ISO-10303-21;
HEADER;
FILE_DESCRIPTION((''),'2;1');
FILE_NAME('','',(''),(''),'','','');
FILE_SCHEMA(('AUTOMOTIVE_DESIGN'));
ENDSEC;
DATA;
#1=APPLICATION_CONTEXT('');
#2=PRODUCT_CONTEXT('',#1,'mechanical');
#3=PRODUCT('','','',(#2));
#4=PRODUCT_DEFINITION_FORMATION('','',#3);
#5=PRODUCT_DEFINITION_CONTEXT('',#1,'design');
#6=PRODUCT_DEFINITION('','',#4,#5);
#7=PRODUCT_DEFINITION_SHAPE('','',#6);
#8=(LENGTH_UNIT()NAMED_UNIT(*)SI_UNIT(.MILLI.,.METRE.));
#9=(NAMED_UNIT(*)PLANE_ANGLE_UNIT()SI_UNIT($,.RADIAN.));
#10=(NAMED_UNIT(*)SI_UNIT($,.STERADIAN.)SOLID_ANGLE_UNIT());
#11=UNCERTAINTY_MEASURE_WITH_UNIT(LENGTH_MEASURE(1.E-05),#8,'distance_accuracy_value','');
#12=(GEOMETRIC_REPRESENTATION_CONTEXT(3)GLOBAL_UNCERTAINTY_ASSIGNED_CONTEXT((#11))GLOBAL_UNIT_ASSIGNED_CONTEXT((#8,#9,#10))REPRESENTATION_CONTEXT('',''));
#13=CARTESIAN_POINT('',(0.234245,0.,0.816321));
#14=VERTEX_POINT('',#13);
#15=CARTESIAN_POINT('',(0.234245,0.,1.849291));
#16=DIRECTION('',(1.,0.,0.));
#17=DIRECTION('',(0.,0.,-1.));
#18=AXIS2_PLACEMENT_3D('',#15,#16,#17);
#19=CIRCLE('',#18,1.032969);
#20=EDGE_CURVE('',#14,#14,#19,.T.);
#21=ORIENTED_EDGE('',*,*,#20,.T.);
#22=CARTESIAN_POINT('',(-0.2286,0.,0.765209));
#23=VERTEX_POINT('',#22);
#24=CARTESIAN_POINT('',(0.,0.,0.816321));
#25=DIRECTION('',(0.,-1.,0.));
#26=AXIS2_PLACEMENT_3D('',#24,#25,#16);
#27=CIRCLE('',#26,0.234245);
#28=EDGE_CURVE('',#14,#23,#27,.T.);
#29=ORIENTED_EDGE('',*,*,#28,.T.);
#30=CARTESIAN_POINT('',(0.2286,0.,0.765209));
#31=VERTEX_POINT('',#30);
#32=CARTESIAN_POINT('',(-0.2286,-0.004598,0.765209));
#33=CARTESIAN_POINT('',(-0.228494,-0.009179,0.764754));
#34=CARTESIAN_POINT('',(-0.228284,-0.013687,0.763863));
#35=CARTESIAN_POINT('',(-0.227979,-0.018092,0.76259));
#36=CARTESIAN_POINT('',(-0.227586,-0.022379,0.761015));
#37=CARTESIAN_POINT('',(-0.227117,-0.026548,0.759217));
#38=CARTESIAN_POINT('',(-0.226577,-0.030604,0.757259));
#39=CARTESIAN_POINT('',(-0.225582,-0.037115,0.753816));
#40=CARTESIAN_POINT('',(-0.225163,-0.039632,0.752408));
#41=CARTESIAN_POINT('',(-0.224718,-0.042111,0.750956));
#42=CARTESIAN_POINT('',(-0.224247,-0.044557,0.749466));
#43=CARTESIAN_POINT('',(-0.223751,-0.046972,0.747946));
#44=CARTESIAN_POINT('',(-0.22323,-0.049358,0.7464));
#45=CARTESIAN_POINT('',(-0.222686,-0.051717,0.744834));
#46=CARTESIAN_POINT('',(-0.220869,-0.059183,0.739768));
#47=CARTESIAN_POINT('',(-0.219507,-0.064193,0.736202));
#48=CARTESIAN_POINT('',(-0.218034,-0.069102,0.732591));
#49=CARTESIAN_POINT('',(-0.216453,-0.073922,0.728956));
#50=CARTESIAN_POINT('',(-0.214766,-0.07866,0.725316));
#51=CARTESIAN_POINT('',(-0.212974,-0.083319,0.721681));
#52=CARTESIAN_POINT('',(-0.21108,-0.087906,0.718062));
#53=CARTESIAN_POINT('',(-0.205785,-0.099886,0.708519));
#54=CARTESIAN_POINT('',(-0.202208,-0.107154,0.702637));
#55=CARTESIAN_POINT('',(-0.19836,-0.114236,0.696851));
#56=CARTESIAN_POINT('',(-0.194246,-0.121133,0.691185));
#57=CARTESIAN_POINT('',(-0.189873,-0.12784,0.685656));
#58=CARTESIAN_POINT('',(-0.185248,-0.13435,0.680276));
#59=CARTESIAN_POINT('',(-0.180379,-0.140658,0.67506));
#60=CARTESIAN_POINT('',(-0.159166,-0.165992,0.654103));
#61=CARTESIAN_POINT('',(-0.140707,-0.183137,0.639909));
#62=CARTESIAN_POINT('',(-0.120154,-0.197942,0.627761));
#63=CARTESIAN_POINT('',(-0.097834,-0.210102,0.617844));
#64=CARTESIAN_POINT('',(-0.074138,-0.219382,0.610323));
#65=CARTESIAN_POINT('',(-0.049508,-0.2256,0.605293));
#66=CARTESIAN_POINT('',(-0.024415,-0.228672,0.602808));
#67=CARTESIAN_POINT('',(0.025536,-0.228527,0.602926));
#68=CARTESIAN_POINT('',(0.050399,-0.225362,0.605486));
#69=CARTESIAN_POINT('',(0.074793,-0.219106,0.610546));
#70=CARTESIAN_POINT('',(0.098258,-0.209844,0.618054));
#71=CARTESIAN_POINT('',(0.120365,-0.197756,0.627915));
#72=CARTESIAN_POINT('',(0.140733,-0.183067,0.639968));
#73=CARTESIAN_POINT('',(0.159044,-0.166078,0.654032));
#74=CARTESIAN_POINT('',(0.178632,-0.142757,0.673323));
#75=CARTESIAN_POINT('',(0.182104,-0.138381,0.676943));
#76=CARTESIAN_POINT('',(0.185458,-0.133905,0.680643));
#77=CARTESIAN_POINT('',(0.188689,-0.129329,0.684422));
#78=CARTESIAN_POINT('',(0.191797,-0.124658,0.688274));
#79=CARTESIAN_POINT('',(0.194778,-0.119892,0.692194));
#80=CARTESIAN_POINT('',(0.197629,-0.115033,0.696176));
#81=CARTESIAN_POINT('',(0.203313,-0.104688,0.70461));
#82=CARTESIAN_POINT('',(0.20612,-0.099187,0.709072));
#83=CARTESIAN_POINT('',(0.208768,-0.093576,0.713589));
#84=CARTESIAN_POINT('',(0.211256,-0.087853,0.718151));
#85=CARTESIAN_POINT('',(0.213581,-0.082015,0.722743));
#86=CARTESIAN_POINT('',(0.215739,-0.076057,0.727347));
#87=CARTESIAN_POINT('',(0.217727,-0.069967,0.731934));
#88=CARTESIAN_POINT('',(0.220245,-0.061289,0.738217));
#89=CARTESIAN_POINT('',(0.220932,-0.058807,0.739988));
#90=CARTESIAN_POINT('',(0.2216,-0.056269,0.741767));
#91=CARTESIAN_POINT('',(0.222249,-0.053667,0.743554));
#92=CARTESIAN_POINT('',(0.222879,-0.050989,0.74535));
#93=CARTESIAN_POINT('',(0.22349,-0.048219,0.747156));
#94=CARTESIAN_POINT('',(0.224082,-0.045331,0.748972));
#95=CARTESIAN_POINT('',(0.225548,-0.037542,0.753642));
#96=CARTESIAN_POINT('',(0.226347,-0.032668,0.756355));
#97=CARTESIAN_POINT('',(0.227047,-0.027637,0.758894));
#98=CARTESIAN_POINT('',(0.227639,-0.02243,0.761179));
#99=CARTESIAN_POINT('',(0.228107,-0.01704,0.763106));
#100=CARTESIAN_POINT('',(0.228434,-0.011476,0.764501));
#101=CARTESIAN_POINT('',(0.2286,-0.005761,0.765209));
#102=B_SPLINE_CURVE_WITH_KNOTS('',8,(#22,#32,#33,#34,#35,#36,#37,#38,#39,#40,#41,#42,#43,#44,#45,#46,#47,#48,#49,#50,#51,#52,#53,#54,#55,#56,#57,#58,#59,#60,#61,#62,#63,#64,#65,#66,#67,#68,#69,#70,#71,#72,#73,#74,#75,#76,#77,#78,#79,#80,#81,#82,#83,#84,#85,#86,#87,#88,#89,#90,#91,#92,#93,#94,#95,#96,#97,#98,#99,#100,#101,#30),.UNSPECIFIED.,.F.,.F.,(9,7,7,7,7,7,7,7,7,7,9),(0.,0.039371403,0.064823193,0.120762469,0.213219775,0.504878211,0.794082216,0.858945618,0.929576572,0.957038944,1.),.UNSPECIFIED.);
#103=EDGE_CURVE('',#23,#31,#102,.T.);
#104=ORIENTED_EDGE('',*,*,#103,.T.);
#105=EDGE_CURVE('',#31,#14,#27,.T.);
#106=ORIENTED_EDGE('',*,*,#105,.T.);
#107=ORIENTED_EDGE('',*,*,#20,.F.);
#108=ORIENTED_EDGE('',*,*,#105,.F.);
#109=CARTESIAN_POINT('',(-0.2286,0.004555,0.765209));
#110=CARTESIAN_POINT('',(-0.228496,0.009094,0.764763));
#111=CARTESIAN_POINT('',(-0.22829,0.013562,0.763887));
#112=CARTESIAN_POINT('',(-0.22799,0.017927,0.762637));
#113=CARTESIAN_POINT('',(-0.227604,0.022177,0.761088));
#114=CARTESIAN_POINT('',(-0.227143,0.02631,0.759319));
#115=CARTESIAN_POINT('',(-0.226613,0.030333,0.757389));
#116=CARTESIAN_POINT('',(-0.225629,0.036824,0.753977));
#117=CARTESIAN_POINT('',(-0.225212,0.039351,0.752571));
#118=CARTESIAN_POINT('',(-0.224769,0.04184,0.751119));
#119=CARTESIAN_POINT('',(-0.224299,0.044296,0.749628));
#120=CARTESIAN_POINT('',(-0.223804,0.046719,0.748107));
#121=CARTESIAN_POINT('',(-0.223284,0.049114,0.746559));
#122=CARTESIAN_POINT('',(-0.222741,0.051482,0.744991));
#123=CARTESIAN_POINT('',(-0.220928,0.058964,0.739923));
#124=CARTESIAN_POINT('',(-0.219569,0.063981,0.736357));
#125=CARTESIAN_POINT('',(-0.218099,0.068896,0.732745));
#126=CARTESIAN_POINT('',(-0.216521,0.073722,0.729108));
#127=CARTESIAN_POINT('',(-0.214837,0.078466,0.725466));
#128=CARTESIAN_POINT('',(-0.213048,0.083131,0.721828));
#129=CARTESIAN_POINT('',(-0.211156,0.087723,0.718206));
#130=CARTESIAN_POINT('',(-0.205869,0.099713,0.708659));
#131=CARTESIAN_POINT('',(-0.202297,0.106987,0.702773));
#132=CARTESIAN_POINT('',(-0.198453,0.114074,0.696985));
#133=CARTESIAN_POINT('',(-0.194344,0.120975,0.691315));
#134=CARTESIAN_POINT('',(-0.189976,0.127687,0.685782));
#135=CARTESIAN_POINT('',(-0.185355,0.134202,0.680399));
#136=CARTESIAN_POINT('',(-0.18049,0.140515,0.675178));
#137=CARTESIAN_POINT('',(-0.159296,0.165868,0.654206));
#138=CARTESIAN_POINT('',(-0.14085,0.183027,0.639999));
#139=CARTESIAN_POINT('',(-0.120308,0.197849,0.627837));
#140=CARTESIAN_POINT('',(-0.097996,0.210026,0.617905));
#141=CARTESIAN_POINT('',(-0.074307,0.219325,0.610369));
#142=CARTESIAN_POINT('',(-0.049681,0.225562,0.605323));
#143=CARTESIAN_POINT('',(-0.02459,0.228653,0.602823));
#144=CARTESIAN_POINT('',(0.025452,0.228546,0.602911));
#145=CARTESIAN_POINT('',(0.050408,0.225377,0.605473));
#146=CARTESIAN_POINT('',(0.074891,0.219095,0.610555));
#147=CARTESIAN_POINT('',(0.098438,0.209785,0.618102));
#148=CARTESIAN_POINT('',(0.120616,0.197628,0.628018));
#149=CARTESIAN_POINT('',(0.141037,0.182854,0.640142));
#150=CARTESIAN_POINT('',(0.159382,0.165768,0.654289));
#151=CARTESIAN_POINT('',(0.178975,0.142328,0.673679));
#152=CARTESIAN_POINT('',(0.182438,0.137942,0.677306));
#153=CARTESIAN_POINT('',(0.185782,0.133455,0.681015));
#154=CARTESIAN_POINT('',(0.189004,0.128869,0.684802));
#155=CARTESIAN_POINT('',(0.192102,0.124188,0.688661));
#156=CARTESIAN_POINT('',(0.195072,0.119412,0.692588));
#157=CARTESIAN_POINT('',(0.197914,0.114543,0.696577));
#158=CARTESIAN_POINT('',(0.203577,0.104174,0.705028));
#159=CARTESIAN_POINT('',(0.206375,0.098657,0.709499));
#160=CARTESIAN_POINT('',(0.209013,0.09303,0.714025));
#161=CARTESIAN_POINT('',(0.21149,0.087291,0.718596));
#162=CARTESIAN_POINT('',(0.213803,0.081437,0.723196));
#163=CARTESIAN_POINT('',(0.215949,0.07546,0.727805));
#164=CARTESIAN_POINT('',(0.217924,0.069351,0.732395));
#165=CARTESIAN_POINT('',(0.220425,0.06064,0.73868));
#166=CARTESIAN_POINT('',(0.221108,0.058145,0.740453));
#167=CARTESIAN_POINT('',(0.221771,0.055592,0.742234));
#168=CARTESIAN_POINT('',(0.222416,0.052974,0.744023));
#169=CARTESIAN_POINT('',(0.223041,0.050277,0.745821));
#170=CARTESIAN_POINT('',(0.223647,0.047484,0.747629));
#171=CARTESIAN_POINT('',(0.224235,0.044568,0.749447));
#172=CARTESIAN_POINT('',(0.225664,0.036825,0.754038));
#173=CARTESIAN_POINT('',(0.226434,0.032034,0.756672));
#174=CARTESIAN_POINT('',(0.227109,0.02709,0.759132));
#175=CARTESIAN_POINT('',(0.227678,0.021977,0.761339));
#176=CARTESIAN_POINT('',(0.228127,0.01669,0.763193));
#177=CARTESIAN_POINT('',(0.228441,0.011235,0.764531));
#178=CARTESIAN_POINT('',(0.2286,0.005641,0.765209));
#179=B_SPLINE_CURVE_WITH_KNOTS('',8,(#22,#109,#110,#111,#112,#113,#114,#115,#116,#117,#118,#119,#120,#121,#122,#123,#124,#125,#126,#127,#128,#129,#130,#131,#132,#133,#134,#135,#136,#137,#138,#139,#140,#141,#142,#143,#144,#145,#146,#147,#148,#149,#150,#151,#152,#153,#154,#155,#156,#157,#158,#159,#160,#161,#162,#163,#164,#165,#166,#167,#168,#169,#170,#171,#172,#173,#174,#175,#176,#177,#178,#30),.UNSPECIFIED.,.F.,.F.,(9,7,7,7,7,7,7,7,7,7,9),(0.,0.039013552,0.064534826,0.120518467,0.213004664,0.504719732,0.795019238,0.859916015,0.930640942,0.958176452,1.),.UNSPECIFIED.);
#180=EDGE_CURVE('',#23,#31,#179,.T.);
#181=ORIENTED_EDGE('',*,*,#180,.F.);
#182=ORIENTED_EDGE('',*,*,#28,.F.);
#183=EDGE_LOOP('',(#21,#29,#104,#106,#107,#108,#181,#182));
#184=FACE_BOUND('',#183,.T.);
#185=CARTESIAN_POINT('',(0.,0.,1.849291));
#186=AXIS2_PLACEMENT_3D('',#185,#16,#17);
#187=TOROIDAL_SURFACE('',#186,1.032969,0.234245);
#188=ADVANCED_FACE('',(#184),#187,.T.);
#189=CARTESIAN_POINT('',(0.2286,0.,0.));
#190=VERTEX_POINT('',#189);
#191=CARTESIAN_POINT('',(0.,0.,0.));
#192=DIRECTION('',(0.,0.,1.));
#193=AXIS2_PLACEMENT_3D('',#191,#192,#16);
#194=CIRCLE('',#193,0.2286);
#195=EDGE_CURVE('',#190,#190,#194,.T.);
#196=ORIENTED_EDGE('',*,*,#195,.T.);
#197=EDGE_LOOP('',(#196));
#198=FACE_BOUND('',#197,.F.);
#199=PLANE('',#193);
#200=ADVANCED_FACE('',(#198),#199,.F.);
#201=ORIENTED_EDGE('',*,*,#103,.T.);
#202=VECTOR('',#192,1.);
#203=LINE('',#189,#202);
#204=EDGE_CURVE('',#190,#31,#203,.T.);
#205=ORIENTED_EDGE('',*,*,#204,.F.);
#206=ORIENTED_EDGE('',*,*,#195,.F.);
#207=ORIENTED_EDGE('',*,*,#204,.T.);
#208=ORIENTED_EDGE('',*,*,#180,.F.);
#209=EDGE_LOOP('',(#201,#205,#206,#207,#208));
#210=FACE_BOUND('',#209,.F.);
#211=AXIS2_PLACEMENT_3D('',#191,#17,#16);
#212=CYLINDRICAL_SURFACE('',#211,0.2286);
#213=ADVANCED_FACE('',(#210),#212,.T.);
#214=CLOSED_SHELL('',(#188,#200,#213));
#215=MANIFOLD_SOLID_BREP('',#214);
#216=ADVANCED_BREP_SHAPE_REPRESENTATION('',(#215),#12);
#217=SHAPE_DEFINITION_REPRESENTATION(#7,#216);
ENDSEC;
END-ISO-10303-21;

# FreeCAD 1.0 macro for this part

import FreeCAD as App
import Part
import Sketcher

V = App.Vector
Q = App.Units.Quantity

doc = App.newDocument("Part")
params = doc.addObject("Spreadsheet::Sheet", "Params")
for row, (alias, value) in enumerate([
    ("sketch1_diameter", "0.25 in"),
    ("pad1_length", "6 in"),
    ("sketch2_diameter", "0.018 in"),
    ("pad2_length", "0.032 in"),
    ("revolution_angle", "360 deg"),
], start=1):
    params.set(f"A{row}", alias)
    params.set(f"B{row}", "=" + value)
    params.setAlias(f"B{row}", alias)

body = doc.addObject("PartDesign::Body", "Body")

sketch1 = doc.addObject("Sketcher::SketchObject", "Sketch")
body.addObject(sketch1)
sketch1.AttachmentSupport = (doc.XY_Plane, [""])
sketch1.MapMode = "FlatFace"
sketch1.addGeometry(Part.Circle(V(0, 0, 0), V(0, 0, 1), 3.2), False)
sketch1.addConstraint([
    Sketcher.Constraint("Coincident", 0, 3, -1, 1),
    Sketcher.Constraint("Diameter", 0, Q("0.25 in")),
])
sketch1.setExpression("Constraints[1]", "Params.sketch1_diameter")
pad1 = doc.addObject("PartDesign::Pad", "Pad")
body.addObject(pad1)
pad1.Profile = sketch1
pad1.setExpression("Length", "Params.pad1_length")
body2 = doc.addObject("PartDesign::Body", "Body001")

sketch2 = doc.addObject("Sketcher::SketchObject", "Sketch001")
body2.addObject(sketch2)
sketch2.AttachmentSupport = (doc.getObject("XY_Plane001"), [""])
sketch2.MapMode = "FlatFace"
sketch2.addGeometry(Part.Circle(V(0, 0, 0), V(0, 0, 1), 0.23), False)
sketch2.addConstraint([
    Sketcher.Constraint("Coincident", 0, 3, -1, 1),
    Sketcher.Constraint("Diameter", 0, Q("0.018 in")),
])
sketch2.setExpression("Constraints[1]", "Params.sketch2_diameter")
pad2 = doc.addObject("PartDesign::Pad", "Pad001")
body2.addObject(pad2)
pad2.Profile = sketch2
pad2.setExpression("Length", "Params.pad2_length")

sketch3 = doc.addObject("Sketcher::SketchObject", "Sketch002")
body2.addObject(sketch3)
sketch3.AttachmentSupport = (doc.getObject("XZ_Plane001"), [""])
sketch3.MapMode = "FlatFace"
sketch3.addGeometry(Part.Circle(V(0, 0.82, 0), V(0, 0, 1), 0.23), False)
sketch3.addGeometry(Part.LineSegment(V(0, 1.85, 0), V(10, 1.85, 0)), True)
sketch3.addConstraint([
    Sketcher.Constraint("Horizontal", 1),
    Sketcher.Constraint("PointOnObject", 0, 3, -2),
    Sketcher.Constraint("PointOnObject", 1, 1, -2),
    Sketcher.Constraint("Diameter", 0, 0.468489),
    Sketcher.Constraint("DistanceX", 1, 1, 1, 2, 10.0),
    Sketcher.Constraint("DistanceY", -1, 1, 0, 3, 0.816321),
    Sketcher.Constraint("DistanceY", -1, 1, 1, 1, 1.849291),
])
revolution = doc.addObject("PartDesign::Revolution", "Revolution")
body2.addObject(revolution)
revolution.Profile = sketch3
revolution.ReferenceAxis = (sketch3, ["Axis0"])
revolution.setExpression("Angle", "Params.revolution_angle")
body.Visibility = False

doc.recompute()
